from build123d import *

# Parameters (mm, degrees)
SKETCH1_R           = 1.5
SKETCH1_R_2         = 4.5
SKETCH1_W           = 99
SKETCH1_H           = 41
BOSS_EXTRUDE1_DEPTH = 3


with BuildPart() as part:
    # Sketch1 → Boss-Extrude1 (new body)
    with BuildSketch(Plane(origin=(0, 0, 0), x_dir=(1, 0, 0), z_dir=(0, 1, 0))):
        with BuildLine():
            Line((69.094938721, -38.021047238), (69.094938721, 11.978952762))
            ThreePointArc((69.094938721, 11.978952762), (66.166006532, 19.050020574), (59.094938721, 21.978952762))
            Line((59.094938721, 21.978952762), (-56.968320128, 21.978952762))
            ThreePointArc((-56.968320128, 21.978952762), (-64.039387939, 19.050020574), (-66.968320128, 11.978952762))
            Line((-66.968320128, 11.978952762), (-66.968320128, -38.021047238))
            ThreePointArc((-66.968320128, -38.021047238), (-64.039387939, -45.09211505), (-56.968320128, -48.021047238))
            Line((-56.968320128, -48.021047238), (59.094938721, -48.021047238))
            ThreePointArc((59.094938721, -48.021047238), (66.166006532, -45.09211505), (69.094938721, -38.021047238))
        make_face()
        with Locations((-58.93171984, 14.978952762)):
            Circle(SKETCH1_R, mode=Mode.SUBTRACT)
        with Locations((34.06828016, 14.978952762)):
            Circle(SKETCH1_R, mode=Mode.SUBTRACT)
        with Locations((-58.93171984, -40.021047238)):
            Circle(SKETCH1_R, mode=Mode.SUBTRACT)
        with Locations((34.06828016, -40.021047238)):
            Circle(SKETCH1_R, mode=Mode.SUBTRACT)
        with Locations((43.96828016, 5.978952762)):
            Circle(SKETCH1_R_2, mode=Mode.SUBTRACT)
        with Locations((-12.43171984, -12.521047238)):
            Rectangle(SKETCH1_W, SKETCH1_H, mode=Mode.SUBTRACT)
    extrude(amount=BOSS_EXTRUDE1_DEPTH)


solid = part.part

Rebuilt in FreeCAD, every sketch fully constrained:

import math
import FreeCAD as App
import Part
import Sketcher

doc = App.newDocument("Part")
body = doc.addObject("PartDesign::Body", "Body")

# Sketch on XZ plane
sketch1 = body.newObject("Sketcher::SketchObject", "Sketch")
sketch1.AttachmentSupport = (doc.getObject("XZ_Plane"), [""])
sketch1.MapMode = "FlatFace"
sketch1.addGeometry([
    Part.LineSegment(App.Vector(69.1, 38, 0), App.Vector(69.1, -12, 0)),  # 0
    Part.ArcOfCircle(Part.Circle(App.Vector(59.1, -12, 0), App.Vector(0, 0, 1), 10), math.radians(-90), math.radians(0)),  # 1
    Part.LineSegment(App.Vector(59.1, -22, 0), App.Vector(-57, -22, 0)),  # 2
    Part.ArcOfCircle(Part.Circle(App.Vector(-57, -12, 0), App.Vector(0, 0, 1), 10), math.radians(-180), math.radians(-90)),  # 3
    Part.LineSegment(App.Vector(-67, -12, 0), App.Vector(-67, 38, 0)),  # 4
    Part.ArcOfCircle(Part.Circle(App.Vector(-57, 38, 0), App.Vector(0, 0, 1), 10), math.radians(90), math.radians(180)),  # 5
    Part.LineSegment(App.Vector(-57, 48, 0), App.Vector(59.1, 48, 0)),  # 6
    Part.ArcOfCircle(Part.Circle(App.Vector(59.1, 38, 0), App.Vector(0, 0, 1), 10), math.radians(0), math.radians(90)),  # 7
    Part.Circle(App.Vector(-58.9, 40, 0), App.Vector(0, 0, 1), 1.5),  # 8
    Part.Circle(App.Vector(34.1, 40, 0), App.Vector(0, 0, 1), 1.5),  # 9
    Part.LineSegment(App.Vector(37.1, 33, 0), App.Vector(-61.9, 33, 0)),  # 10
    Part.LineSegment(App.Vector(-61.9, 33, 0), App.Vector(-61.9, -8, 0)),  # 11
    Part.LineSegment(App.Vector(-61.9, -8, 0), App.Vector(37.1, -8, 0)),  # 12
    Part.LineSegment(App.Vector(37.1, -8, 0), App.Vector(37.1, 33, 0)),  # 13
    Part.Circle(App.Vector(-58.9, -15, 0), App.Vector(0, 0, 1), 1.5),  # 14
    Part.Circle(App.Vector(44, -6, 0), App.Vector(0, 0, 1), 4.5),  # 15
    Part.Circle(App.Vector(34.1, -15, 0), App.Vector(0, 0, 1), 1.5),  # 16
], False)
sketch1.addConstraint([
    Sketcher.Constraint("Tangent", 0, 2, 1, 2),
    Sketcher.Constraint("Tangent", 1, 1, 2, 1),
    Sketcher.Constraint("Tangent", 2, 2, 3, 2),
    Sketcher.Constraint("Tangent", 3, 1, 4, 1),
    Sketcher.Constraint("Tangent", 4, 2, 5, 2),
    Sketcher.Constraint("Tangent", 5, 1, 6, 1),
    Sketcher.Constraint("Tangent", 6, 2, 7, 2),
    Sketcher.Constraint("Tangent", 7, 1, 0, 1),
    Sketcher.Constraint("Coincident", 10, 2, 11, 1),
    Sketcher.Constraint("Coincident", 11, 2, 12, 1),
    Sketcher.Constraint("Coincident", 12, 2, 13, 1),
    Sketcher.Constraint("Coincident", 13, 2, 10, 1),
    Sketcher.Constraint("Vertical", 0),
    Sketcher.Constraint("Horizontal", 2),
    Sketcher.Constraint("Vertical", 4),
    Sketcher.Constraint("Horizontal", 6),
    Sketcher.Constraint("Horizontal", 10),
    Sketcher.Constraint("Vertical", 11),
    Sketcher.Constraint("Horizontal", 12),
    Sketcher.Constraint("Vertical", 13),
    Sketcher.Constraint("Equal", 1, 3),
    Sketcher.Constraint("Equal", 3, 5),
    Sketcher.Constraint("Equal", 5, 7),
    Sketcher.Constraint("Equal", 8, 9),
    Sketcher.Constraint("Equal", 9, 14),
    Sketcher.Constraint("Equal", 14, 16),
    Sketcher.Constraint("Horizontal", 8, 3, 9, 3),
    Sketcher.Constraint("Horizontal", 14, 3, 16, 3),
    Sketcher.Constraint("Vertical", 8, 3, 14, 3),
    Sketcher.Constraint("Vertical", 9, 3, 16, 3),
    Sketcher.Constraint("Diameter", 8, 3.0),
    Sketcher.Constraint("Diameter", 15, 9.0),
    Sketcher.Constraint("Radius", 1, 10.0),
    Sketcher.Constraint("DistanceX", 10, 2, 10, 1, 99.0),
    Sketcher.Constraint("DistanceY", 0, 2, 0, 1, 50.0),
    Sketcher.Constraint("DistanceY", 11, 2, 11, 1, 41.0),
    Sketcher.Constraint("DistanceY", 5, 3, 8, 3, 2.0),
    Sketcher.Constraint("DistanceX", 8, 3, 9, 3, 93.0),
    Sketcher.Constraint("DistanceY", 14, 3, 3, 3, 3.0),
    Sketcher.Constraint("DistanceY", 1, 3, 15, 3, 6.0),
    Sketcher.Constraint("DistanceY", 10, 2, 5, 3, 5.0),
    Sketcher.Constraint("DistanceX", 10, 2, 8, 3, 3.0),
    Sketcher.Constraint("DistanceX", 9, 3, 15, 3, 9.9),
    Sketcher.Constraint("DistanceX", 2, 2, 2, 1, 116.063259),
    Sketcher.Constraint("DistanceX", 8, 3, 5, 3, 1.9634),
    Sketcher.Constraint("DistanceX", -1, 1, 1, 3, 59.094939),
    Sketcher.Constraint("DistanceY", 1, 3, -1, 1, 11.978953),
])
pad1 = body.newObject("PartDesign::Pad", "Pad")
pad1.Profile = sketch1
pad1.Length = 3
pad1.Reversed = True

doc.recompute()
